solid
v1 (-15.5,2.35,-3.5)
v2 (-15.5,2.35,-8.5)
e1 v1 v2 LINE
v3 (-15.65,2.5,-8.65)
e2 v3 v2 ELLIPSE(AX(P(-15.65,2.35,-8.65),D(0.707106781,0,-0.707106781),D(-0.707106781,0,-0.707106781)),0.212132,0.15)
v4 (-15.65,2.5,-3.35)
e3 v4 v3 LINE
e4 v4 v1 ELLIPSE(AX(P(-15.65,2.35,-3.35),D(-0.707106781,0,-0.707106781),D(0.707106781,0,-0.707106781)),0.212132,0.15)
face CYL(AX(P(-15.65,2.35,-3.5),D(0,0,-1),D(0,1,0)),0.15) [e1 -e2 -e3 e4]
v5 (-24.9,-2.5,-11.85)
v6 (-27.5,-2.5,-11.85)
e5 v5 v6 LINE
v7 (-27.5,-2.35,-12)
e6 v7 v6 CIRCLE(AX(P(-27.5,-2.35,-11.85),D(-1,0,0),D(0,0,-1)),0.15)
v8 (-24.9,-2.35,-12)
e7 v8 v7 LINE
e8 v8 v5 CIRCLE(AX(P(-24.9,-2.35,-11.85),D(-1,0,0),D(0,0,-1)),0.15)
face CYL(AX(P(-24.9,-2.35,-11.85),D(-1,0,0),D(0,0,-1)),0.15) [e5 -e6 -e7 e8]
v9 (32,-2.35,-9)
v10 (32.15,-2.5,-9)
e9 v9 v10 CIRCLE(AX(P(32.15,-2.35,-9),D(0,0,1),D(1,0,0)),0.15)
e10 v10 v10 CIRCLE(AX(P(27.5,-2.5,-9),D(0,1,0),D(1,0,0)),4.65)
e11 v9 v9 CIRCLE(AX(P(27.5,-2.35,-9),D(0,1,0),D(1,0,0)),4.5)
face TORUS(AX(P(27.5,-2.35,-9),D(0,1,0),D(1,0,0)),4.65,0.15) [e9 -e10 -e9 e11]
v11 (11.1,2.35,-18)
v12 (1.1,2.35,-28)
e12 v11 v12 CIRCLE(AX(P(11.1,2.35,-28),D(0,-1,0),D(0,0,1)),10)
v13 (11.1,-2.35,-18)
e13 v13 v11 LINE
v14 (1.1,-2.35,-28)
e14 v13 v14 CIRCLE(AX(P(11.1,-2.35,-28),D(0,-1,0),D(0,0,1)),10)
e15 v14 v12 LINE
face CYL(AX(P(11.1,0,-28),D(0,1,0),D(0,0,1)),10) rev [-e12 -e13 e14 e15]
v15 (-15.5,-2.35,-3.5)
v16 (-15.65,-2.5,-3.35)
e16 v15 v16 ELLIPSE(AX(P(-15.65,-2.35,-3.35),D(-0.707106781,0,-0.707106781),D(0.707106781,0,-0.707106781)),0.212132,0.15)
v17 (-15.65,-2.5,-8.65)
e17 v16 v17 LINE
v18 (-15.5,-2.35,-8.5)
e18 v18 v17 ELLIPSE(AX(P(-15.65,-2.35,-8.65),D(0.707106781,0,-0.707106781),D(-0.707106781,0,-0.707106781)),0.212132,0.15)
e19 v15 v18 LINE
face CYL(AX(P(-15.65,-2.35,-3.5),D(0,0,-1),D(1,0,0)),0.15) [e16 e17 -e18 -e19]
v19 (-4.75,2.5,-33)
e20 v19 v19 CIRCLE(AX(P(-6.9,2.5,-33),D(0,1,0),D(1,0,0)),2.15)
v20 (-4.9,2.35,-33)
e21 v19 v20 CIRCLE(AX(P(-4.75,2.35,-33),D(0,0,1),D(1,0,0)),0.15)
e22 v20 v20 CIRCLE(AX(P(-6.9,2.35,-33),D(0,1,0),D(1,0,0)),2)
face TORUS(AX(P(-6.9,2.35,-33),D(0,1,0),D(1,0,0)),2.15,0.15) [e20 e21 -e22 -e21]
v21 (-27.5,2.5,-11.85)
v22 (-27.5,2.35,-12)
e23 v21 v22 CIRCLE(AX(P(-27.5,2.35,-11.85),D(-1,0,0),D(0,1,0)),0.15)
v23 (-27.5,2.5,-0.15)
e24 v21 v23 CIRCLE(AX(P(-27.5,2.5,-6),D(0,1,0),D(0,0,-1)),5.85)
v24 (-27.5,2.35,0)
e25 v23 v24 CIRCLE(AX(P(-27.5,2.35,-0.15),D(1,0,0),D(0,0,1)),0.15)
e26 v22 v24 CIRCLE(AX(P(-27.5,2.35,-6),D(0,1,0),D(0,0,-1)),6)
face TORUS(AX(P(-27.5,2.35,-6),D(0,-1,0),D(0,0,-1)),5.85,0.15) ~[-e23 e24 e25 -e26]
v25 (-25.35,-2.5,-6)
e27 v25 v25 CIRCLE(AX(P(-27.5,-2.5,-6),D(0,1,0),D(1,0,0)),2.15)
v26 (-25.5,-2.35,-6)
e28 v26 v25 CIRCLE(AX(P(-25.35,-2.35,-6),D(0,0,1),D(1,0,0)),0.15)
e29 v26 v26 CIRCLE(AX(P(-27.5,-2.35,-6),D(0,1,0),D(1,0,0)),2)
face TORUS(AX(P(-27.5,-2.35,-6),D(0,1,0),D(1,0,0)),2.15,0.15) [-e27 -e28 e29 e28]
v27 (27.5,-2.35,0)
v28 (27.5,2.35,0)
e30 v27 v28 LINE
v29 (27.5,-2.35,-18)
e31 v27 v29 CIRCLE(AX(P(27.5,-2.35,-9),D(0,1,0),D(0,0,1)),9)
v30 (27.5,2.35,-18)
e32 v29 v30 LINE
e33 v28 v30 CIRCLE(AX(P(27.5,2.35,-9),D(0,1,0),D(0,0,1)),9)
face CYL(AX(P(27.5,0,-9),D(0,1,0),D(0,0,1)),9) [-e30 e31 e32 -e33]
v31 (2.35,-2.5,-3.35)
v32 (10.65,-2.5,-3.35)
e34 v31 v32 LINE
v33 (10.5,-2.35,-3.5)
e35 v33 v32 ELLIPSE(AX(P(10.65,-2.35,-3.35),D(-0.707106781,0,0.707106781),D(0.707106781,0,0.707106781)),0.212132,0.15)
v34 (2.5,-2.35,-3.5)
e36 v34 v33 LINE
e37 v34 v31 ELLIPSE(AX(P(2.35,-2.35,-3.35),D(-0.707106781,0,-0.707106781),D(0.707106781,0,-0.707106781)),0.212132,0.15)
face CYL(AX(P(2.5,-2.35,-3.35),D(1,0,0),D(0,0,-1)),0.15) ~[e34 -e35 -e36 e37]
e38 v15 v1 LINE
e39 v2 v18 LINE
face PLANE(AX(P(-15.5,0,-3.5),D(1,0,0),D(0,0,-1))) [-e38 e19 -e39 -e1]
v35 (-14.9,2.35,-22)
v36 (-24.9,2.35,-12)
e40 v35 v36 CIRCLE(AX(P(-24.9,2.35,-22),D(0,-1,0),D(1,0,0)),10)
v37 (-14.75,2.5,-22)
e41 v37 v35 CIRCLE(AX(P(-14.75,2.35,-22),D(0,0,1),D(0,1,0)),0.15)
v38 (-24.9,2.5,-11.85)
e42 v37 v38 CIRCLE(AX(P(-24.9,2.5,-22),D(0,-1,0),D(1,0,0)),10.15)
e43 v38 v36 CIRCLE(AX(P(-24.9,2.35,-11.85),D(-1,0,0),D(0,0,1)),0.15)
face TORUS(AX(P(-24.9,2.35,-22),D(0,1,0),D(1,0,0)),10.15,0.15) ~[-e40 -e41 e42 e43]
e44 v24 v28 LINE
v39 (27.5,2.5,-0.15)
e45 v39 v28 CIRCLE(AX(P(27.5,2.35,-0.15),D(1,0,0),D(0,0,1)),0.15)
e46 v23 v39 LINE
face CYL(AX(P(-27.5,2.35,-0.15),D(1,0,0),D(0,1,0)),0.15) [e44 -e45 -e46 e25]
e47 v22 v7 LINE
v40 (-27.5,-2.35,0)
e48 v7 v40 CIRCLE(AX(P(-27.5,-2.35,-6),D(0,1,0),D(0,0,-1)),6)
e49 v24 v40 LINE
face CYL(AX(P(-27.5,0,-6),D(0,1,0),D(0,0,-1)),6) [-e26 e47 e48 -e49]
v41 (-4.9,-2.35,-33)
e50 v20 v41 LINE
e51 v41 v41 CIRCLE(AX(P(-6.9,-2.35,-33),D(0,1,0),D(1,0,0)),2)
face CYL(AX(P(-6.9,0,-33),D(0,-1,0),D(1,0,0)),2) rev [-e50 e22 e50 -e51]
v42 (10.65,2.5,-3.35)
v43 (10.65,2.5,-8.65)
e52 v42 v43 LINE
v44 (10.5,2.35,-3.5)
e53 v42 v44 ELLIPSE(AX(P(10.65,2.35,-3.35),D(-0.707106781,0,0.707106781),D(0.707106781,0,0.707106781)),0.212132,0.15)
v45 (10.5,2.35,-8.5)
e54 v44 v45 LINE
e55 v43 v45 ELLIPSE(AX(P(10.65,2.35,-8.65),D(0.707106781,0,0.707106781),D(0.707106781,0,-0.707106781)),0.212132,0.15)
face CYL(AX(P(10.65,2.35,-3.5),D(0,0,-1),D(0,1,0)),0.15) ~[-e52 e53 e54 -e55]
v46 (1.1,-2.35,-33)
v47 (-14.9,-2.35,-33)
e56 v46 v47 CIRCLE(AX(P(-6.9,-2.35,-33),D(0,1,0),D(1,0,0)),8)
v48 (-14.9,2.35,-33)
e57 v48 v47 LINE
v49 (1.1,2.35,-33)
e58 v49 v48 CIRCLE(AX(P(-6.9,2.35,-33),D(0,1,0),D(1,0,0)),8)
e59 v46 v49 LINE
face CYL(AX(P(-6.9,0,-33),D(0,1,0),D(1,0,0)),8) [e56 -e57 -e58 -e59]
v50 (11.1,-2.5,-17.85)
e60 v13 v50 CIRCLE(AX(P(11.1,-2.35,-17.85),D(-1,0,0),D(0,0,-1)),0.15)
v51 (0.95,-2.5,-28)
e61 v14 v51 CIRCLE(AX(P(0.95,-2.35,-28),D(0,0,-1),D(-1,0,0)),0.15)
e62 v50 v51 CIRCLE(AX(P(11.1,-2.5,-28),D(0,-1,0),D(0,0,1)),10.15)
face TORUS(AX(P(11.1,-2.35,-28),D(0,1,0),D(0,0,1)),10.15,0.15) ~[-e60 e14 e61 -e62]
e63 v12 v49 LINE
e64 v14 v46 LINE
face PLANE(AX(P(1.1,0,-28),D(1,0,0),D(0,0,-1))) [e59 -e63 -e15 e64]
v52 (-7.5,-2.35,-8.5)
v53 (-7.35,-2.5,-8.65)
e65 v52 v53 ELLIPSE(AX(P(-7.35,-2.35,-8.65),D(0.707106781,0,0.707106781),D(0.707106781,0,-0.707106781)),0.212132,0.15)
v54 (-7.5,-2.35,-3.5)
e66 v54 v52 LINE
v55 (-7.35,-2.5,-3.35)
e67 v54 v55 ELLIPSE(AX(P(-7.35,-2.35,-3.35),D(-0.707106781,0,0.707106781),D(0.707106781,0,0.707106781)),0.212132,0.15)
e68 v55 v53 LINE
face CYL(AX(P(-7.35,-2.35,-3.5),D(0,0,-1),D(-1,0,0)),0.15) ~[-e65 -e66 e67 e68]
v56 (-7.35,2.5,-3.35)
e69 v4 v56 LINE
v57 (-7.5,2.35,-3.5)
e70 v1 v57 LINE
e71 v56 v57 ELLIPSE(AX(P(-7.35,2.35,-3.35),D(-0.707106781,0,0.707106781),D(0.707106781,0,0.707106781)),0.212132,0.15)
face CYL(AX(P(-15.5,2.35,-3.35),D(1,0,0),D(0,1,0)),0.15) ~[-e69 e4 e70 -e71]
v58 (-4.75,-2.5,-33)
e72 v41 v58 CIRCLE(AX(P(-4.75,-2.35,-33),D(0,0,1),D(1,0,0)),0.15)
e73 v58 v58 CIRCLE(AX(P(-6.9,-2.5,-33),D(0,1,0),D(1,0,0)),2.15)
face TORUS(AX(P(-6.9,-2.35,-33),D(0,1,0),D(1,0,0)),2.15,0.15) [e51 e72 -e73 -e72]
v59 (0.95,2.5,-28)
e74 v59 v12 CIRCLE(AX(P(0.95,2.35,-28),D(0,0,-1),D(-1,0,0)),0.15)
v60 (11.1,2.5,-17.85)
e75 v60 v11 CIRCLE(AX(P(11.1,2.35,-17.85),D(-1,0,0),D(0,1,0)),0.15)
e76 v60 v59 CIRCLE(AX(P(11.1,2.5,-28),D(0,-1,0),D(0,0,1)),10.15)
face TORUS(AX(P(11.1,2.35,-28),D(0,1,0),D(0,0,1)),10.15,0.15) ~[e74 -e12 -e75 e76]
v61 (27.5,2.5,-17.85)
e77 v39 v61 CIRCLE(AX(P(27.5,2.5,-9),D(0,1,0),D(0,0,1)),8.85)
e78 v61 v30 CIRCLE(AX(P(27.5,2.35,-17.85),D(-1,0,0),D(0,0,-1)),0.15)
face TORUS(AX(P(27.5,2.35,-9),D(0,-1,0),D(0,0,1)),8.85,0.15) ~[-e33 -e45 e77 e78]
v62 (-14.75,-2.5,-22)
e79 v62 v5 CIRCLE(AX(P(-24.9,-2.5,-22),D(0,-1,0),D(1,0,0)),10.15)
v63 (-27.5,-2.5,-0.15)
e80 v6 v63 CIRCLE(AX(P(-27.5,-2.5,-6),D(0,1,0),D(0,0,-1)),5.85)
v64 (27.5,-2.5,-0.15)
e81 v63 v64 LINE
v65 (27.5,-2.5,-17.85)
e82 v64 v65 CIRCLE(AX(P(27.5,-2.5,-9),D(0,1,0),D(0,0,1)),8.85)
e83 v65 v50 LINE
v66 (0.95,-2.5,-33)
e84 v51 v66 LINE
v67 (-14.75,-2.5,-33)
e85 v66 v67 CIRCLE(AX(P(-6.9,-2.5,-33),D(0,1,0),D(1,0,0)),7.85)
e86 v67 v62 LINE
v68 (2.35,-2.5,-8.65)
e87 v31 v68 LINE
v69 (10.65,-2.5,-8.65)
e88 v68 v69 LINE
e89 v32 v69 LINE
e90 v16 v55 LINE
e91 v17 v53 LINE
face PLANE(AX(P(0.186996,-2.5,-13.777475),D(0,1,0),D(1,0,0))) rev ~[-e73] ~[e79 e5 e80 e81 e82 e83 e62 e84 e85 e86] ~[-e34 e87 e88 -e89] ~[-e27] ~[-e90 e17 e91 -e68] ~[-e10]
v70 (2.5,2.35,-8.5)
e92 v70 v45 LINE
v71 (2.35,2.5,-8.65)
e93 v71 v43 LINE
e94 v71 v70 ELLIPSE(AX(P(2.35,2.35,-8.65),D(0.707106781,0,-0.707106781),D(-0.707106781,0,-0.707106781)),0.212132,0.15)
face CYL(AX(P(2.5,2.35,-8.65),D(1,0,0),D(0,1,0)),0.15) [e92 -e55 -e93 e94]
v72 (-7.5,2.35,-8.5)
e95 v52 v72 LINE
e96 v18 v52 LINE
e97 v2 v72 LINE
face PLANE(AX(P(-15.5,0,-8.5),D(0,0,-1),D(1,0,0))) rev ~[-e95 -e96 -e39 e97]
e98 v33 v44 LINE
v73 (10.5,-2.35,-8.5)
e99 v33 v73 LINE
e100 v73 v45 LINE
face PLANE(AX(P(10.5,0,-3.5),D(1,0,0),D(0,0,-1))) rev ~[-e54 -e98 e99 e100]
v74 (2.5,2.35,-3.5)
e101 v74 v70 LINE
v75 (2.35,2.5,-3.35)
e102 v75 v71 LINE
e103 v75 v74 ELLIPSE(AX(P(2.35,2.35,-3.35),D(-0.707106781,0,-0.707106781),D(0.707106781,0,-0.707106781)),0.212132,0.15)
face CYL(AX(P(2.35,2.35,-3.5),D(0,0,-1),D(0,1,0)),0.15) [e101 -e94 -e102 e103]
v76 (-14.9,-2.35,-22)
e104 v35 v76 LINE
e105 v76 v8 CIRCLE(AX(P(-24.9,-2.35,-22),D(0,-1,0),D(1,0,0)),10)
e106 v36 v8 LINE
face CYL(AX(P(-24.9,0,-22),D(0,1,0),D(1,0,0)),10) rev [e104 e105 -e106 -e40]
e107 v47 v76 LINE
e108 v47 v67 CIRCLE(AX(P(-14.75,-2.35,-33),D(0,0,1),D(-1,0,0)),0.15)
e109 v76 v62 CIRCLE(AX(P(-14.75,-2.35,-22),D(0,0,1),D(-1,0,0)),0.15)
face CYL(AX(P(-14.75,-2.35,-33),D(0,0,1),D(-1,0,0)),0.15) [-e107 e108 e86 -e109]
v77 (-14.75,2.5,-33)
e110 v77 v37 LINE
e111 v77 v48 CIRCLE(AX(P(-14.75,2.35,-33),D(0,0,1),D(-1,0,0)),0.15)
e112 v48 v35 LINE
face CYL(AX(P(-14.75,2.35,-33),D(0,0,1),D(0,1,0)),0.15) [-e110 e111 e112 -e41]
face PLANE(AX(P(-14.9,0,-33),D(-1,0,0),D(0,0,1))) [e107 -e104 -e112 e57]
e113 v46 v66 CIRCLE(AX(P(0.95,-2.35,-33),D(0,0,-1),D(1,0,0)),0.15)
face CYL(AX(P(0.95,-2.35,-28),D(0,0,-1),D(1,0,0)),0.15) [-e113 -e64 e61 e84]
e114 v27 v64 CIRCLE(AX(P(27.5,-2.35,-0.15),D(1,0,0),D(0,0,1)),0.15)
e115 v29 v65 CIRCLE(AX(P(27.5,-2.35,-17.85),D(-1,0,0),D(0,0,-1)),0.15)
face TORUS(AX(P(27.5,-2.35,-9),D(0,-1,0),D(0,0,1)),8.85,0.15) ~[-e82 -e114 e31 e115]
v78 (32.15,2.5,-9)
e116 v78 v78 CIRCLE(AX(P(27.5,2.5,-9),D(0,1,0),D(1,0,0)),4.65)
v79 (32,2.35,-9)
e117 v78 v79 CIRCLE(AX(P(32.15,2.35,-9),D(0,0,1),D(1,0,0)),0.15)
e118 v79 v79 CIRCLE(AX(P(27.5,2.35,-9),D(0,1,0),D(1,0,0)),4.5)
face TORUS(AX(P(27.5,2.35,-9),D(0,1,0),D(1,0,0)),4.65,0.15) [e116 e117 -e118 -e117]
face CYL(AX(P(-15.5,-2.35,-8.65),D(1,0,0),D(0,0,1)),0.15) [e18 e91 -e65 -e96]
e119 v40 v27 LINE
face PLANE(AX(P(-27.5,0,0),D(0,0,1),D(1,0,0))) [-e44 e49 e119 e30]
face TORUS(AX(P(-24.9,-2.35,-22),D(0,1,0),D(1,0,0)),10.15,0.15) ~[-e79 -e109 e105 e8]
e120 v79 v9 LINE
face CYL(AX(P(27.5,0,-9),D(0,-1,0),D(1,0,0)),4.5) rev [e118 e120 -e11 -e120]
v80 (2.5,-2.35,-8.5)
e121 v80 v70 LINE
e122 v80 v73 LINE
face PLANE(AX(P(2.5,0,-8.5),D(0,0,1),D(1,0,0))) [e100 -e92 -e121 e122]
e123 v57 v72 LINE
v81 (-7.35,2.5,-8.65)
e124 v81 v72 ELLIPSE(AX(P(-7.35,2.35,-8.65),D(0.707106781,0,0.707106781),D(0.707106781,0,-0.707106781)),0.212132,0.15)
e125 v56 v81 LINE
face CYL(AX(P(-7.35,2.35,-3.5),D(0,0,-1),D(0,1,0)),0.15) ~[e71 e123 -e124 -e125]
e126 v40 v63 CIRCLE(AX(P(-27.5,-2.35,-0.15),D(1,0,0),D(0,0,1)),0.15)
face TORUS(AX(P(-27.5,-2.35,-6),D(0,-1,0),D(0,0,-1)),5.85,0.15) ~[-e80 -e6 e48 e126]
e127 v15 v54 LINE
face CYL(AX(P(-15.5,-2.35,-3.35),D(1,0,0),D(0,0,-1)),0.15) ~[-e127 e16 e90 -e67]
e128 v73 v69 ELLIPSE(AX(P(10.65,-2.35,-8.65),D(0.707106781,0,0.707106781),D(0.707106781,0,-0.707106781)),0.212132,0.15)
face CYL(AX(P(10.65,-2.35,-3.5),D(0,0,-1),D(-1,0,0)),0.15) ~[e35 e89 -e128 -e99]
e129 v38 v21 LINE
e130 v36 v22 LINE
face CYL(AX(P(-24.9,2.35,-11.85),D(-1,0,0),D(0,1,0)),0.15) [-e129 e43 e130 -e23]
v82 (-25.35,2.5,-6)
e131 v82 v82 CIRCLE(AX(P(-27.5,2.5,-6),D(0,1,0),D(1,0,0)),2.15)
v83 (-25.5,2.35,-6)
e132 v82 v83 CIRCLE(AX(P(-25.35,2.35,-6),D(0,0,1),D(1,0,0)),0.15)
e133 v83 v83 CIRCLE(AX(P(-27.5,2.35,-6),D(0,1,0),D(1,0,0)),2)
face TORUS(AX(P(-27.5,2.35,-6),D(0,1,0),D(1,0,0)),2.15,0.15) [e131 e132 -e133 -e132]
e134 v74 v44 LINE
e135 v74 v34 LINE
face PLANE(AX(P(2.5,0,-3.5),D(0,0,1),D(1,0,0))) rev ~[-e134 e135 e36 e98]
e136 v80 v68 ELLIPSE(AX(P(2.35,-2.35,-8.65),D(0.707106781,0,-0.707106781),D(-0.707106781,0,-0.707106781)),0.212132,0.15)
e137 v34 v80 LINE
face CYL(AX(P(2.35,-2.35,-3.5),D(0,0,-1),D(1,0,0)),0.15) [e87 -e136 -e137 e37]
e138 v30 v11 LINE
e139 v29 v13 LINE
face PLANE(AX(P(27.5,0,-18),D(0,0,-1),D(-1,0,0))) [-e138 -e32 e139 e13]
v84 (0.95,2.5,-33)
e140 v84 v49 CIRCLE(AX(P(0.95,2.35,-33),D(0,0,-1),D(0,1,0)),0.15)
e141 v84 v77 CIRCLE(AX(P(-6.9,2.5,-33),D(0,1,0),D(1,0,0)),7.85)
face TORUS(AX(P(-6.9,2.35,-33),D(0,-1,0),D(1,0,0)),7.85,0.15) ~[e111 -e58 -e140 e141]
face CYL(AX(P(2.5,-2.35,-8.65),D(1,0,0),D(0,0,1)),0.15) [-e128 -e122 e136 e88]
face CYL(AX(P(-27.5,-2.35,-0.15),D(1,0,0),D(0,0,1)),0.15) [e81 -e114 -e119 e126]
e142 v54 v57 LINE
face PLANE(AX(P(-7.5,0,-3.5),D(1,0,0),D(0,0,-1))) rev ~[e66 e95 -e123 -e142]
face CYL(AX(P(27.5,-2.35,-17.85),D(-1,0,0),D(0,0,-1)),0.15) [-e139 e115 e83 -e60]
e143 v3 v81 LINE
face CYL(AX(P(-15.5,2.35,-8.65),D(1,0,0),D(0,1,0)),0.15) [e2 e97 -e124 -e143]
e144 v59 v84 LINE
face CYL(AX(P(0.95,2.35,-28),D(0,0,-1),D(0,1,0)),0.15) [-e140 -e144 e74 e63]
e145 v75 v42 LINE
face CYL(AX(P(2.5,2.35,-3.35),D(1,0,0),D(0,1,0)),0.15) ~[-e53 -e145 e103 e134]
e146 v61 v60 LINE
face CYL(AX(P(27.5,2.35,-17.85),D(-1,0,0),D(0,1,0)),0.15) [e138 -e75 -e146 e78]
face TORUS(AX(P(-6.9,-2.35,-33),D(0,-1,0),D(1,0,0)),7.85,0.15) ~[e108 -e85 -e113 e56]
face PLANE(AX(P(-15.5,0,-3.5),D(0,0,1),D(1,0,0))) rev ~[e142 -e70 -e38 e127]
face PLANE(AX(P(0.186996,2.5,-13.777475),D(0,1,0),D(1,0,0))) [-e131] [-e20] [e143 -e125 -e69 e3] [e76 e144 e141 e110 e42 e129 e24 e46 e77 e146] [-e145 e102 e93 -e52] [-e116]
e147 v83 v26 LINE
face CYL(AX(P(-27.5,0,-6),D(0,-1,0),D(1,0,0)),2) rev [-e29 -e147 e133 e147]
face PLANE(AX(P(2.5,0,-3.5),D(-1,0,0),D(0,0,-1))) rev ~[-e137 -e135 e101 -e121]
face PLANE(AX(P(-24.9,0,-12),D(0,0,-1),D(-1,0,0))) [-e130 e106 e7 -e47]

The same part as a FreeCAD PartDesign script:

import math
import FreeCAD as App
import Part
import Sketcher


def edges_at(feature, points):
    """Names of the edges that pass closest to the given points."""
    edges = feature.Shape.Edges
    near = lambda p: min(range(len(edges)), key=lambda i: edges[i].distToShape(Part.Vertex(*p))[0])
    return sorted({f"Edge{near(p) + 1}" for p in points})

doc = App.newDocument("Part")
body = doc.addObject("PartDesign::Body", "Body")

# Sketch on XZ plane
sketch1 = body.newObject("Sketcher::SketchObject", "Sketch")
sketch1.AttachmentSupport = (doc.getObject("XZ_Plane"), [""])
sketch1.MapMode = "FlatFace"
sketch1.addGeometry([
    Part.LineSegment(App.Vector(-27.5, 0, 0), App.Vector(27.5, 0, 0)),  # 0
    Part.ArcOfCircle(Part.Circle(App.Vector(27.5, -9, 0), App.Vector(0, 0, 1), 9), math.radians(-90), math.radians(90)),  # 1
    Part.LineSegment(App.Vector(27.5, -18, 0), App.Vector(11.1, -18, 0)),  # 2
    Part.ArcOfCircle(Part.Circle(App.Vector(11.1, -28, 0), App.Vector(0, 0, 1), 10), math.radians(90), math.radians(180)),  # 3
    Part.LineSegment(App.Vector(1.1, -28, 0), App.Vector(1.1, -33, 0)),  # 4
    Part.ArcOfCircle(Part.Circle(App.Vector(-6.9, -33, 0), App.Vector(0, 0, 1), 8), math.radians(180), math.radians(360)),  # 5
    Part.LineSegment(App.Vector(-14.9, -33, 0), App.Vector(-14.9, -22, 0)),  # 6
    Part.ArcOfCircle(Part.Circle(App.Vector(-24.9, -22, 0), App.Vector(0, 0, 1), 10), math.radians(0), math.radians(90)),  # 7
    Part.LineSegment(App.Vector(-24.9, -12, 0), App.Vector(-27.5, -12, 0)),  # 8
    Part.ArcOfCircle(Part.Circle(App.Vector(-27.5, -6, 0), App.Vector(0, 0, 1), 6), math.radians(90), math.radians(270)),  # 9
    Part.Circle(App.Vector(-27.5, -6, 0), App.Vector(0, 0, 1), 2),  # 10
    Part.LineSegment(App.Vector(-7.5, -3.5, 0), App.Vector(-15.5, -3.5, 0)),  # 11
    Part.LineSegment(App.Vector(-15.5, -3.5, 0), App.Vector(-15.5, -8.5, 0)),  # 12
    Part.LineSegment(App.Vector(-15.5, -8.5, 0), App.Vector(-7.5, -8.5, 0)),  # 13
    Part.LineSegment(App.Vector(-7.5, -8.5, 0), App.Vector(-7.5, -3.5, 0)),  # 14
    Part.LineSegment(App.Vector(10.5, -3.5, 0), App.Vector(2.5, -3.5, 0)),  # 15
    Part.LineSegment(App.Vector(2.5, -3.5, 0), App.Vector(2.5, -8.5, 0)),  # 16
    Part.LineSegment(App.Vector(2.5, -8.5, 0), App.Vector(10.5, -8.5, 0)),  # 17
    Part.LineSegment(App.Vector(10.5, -8.5, 0), App.Vector(10.5, -3.5, 0)),  # 18
    Part.Circle(App.Vector(27.5, -9, 0), App.Vector(0, 0, 1), 4.5),  # 19
    Part.Circle(App.Vector(-6.9, -33, 0), App.Vector(0, 0, 1), 2),  # 20
], False)
sketch1.addConstraint([
    Sketcher.Constraint("Tangent", 0, 2, 1, 2),
    Sketcher.Constraint("Tangent", 1, 1, 2, 1),
    Sketcher.Constraint("Tangent", 2, 2, 3, 1),
    Sketcher.Constraint("Tangent", 3, 2, 4, 1),
    Sketcher.Constraint("Tangent", 4, 2, 5, 2),
    Sketcher.Constraint("Tangent", 5, 1, 6, 1),
    Sketcher.Constraint("Tangent", 6, 2, 7, 1),
    Sketcher.Constraint("Tangent", 7, 2, 8, 1),
    Sketcher.Constraint("Tangent", 8, 2, 9, 2),
    Sketcher.Constraint("Tangent", 9, 1, 0, 1),
    Sketcher.Constraint("Coincident", 11, 2, 12, 1),
    Sketcher.Constraint("Coincident", 12, 2, 13, 1),
    Sketcher.Constraint("Coincident", 13, 2, 14, 1),
    Sketcher.Constraint("Coincident", 14, 2, 11, 1),
    Sketcher.Constraint("Coincident", 15, 2, 16, 1),
    Sketcher.Constraint("Coincident", 16, 2, 17, 1),
    Sketcher.Constraint("Coincident", 17, 2, 18, 1),
    Sketcher.Constraint("Coincident", 18, 2, 15, 1),
    Sketcher.Constraint("Horizontal", 0),
    Sketcher.Constraint("Horizontal", 2),
    Sketcher.Constraint("Vertical", 4),
    Sketcher.Constraint("Vertical", 6),
    Sketcher.Constraint("Horizontal", 8),
    Sketcher.Constraint("Horizontal", 11),
    Sketcher.Constraint("Vertical", 12),
    Sketcher.Constraint("Horizontal", 13),
    Sketcher.Constraint("Vertical", 14),
    Sketcher.Constraint("Horizontal", 15),
    Sketcher.Constraint("Vertical", 16),
    Sketcher.Constraint("Horizontal", 17),
    Sketcher.Constraint("Vertical", 18),
    Sketcher.Constraint("Coincident", 10, 3, 9, 3),
    Sketcher.Constraint("Coincident", 19, 3, 1, 3),
    Sketcher.Constraint("Coincident", 20, 3, 5, 3),
    Sketcher.Constraint("Equal", 3, 7),
    Sketcher.Constraint("Equal", 10, 20),
    Sketcher.Constraint("Symmetric", 0, 2, 9, 1, -1, 1),
    Sketcher.Constraint("Horizontal", 14, 2, 15, 2),
    Sketcher.Constraint("Horizontal", 13, 2, 16, 2),
    Sketcher.Constraint("Equal", 13, 15),
    Sketcher.Constraint("Equal", 4, 12),
    Sketcher.Constraint("Diameter", 10, 4.0),
    Sketcher.Constraint("Diameter", 19, 9.0),
    Sketcher.Constraint("Radius", 1, 9.0),
    Sketcher.Constraint("Radius", 3, 10.0),
    Sketcher.Constraint("Radius", 5, 8.0),
    Sketcher.Constraint("Radius", 9, 6.0),
    Sketcher.Constraint("DistanceX", 0, 1, 0, 2, 55.0),
    Sketcher.Constraint("DistanceX", 11, 2, 11, 1, 8.0),
    Sketcher.Constraint("DistanceY", 4, 2, 4, 1, 5.0),
    Sketcher.Constraint("DistanceX", 2, 2, 2, 1, 16.4),
    Sketcher.Constraint("DistanceX", 9, 3, 11, 2, 12.0),
    Sketcher.Constraint("DistanceX", 14, 2, 15, 2, 10.0),
    Sketcher.Constraint("DistanceY", 11, 2, -1, 1, 3.5),
])
pad1 = body.newObject("PartDesign::Pad", "Pad")
pad1.Profile = sketch1
pad1.Length = 5
pad1.Midplane = True
doc.recompute()

fillet = body.newObject("PartDesign::Fillet", "Fillet")
fillet.Base = (pad1, edges_at(pad1, [
    (-26.2, -2.5, -12),
    (-17.829, -2.5, -14.929),
    (-14.9, -2.5, -27.5),
    (-6.9, -2.5, -41),
    (1.1, -2.5, -30.5),
    (4.029, -2.5, -20.929),
    (19.3, -2.5, -18),
    (36.5, 2.5, -9),
    (36.5, -2.5, -9),
    (0, -2.5, 0),
    (-33.5, -2.5, -6),
    (19.3, 2.5, -18),
    (4.029, 2.5, -20.929),
    (1.1, 2.5, -30.5),
    (-29.5, -2.5, -6),
    (-29.5, 2.5, -6),
    (-6.9, 2.5, -41),
    (23, -2.5, -9),
    (23, 2.5, -9),
    (-14.9, 2.5, -27.5),
    (-8.9, -2.5, -33),
    (-8.9, 2.5, -33),
    (-17.829, 2.5, -14.929),
    (-15.5, -2.5, -6),
    (-11.5, -2.5, -3.5),
    (-26.2, 2.5, -12),
    (-7.5, -2.5, -6),
    (-11.5, -2.5, -8.5),
    (-15.5, 2.5, -6),
    (-11.5, 2.5, -3.5),
    (-7.5, 2.5, -6),
    (-11.5, 2.5, -8.5),
    (-33.5, 2.5, -6),
    (2.5, -2.5, -6),
    (6.5, -2.5, -3.5),
    (10.5, -2.5, -6),
    (6.5, -2.5, -8.5),
    (2.5, 2.5, -6),
    (6.5, 2.5, -3.5),
    (10.5, 2.5, -6),
    (6.5, 2.5, -8.5),
    (0, 2.5, 0),
]))
fillet.Radius = 0.15

doc.recompute()
